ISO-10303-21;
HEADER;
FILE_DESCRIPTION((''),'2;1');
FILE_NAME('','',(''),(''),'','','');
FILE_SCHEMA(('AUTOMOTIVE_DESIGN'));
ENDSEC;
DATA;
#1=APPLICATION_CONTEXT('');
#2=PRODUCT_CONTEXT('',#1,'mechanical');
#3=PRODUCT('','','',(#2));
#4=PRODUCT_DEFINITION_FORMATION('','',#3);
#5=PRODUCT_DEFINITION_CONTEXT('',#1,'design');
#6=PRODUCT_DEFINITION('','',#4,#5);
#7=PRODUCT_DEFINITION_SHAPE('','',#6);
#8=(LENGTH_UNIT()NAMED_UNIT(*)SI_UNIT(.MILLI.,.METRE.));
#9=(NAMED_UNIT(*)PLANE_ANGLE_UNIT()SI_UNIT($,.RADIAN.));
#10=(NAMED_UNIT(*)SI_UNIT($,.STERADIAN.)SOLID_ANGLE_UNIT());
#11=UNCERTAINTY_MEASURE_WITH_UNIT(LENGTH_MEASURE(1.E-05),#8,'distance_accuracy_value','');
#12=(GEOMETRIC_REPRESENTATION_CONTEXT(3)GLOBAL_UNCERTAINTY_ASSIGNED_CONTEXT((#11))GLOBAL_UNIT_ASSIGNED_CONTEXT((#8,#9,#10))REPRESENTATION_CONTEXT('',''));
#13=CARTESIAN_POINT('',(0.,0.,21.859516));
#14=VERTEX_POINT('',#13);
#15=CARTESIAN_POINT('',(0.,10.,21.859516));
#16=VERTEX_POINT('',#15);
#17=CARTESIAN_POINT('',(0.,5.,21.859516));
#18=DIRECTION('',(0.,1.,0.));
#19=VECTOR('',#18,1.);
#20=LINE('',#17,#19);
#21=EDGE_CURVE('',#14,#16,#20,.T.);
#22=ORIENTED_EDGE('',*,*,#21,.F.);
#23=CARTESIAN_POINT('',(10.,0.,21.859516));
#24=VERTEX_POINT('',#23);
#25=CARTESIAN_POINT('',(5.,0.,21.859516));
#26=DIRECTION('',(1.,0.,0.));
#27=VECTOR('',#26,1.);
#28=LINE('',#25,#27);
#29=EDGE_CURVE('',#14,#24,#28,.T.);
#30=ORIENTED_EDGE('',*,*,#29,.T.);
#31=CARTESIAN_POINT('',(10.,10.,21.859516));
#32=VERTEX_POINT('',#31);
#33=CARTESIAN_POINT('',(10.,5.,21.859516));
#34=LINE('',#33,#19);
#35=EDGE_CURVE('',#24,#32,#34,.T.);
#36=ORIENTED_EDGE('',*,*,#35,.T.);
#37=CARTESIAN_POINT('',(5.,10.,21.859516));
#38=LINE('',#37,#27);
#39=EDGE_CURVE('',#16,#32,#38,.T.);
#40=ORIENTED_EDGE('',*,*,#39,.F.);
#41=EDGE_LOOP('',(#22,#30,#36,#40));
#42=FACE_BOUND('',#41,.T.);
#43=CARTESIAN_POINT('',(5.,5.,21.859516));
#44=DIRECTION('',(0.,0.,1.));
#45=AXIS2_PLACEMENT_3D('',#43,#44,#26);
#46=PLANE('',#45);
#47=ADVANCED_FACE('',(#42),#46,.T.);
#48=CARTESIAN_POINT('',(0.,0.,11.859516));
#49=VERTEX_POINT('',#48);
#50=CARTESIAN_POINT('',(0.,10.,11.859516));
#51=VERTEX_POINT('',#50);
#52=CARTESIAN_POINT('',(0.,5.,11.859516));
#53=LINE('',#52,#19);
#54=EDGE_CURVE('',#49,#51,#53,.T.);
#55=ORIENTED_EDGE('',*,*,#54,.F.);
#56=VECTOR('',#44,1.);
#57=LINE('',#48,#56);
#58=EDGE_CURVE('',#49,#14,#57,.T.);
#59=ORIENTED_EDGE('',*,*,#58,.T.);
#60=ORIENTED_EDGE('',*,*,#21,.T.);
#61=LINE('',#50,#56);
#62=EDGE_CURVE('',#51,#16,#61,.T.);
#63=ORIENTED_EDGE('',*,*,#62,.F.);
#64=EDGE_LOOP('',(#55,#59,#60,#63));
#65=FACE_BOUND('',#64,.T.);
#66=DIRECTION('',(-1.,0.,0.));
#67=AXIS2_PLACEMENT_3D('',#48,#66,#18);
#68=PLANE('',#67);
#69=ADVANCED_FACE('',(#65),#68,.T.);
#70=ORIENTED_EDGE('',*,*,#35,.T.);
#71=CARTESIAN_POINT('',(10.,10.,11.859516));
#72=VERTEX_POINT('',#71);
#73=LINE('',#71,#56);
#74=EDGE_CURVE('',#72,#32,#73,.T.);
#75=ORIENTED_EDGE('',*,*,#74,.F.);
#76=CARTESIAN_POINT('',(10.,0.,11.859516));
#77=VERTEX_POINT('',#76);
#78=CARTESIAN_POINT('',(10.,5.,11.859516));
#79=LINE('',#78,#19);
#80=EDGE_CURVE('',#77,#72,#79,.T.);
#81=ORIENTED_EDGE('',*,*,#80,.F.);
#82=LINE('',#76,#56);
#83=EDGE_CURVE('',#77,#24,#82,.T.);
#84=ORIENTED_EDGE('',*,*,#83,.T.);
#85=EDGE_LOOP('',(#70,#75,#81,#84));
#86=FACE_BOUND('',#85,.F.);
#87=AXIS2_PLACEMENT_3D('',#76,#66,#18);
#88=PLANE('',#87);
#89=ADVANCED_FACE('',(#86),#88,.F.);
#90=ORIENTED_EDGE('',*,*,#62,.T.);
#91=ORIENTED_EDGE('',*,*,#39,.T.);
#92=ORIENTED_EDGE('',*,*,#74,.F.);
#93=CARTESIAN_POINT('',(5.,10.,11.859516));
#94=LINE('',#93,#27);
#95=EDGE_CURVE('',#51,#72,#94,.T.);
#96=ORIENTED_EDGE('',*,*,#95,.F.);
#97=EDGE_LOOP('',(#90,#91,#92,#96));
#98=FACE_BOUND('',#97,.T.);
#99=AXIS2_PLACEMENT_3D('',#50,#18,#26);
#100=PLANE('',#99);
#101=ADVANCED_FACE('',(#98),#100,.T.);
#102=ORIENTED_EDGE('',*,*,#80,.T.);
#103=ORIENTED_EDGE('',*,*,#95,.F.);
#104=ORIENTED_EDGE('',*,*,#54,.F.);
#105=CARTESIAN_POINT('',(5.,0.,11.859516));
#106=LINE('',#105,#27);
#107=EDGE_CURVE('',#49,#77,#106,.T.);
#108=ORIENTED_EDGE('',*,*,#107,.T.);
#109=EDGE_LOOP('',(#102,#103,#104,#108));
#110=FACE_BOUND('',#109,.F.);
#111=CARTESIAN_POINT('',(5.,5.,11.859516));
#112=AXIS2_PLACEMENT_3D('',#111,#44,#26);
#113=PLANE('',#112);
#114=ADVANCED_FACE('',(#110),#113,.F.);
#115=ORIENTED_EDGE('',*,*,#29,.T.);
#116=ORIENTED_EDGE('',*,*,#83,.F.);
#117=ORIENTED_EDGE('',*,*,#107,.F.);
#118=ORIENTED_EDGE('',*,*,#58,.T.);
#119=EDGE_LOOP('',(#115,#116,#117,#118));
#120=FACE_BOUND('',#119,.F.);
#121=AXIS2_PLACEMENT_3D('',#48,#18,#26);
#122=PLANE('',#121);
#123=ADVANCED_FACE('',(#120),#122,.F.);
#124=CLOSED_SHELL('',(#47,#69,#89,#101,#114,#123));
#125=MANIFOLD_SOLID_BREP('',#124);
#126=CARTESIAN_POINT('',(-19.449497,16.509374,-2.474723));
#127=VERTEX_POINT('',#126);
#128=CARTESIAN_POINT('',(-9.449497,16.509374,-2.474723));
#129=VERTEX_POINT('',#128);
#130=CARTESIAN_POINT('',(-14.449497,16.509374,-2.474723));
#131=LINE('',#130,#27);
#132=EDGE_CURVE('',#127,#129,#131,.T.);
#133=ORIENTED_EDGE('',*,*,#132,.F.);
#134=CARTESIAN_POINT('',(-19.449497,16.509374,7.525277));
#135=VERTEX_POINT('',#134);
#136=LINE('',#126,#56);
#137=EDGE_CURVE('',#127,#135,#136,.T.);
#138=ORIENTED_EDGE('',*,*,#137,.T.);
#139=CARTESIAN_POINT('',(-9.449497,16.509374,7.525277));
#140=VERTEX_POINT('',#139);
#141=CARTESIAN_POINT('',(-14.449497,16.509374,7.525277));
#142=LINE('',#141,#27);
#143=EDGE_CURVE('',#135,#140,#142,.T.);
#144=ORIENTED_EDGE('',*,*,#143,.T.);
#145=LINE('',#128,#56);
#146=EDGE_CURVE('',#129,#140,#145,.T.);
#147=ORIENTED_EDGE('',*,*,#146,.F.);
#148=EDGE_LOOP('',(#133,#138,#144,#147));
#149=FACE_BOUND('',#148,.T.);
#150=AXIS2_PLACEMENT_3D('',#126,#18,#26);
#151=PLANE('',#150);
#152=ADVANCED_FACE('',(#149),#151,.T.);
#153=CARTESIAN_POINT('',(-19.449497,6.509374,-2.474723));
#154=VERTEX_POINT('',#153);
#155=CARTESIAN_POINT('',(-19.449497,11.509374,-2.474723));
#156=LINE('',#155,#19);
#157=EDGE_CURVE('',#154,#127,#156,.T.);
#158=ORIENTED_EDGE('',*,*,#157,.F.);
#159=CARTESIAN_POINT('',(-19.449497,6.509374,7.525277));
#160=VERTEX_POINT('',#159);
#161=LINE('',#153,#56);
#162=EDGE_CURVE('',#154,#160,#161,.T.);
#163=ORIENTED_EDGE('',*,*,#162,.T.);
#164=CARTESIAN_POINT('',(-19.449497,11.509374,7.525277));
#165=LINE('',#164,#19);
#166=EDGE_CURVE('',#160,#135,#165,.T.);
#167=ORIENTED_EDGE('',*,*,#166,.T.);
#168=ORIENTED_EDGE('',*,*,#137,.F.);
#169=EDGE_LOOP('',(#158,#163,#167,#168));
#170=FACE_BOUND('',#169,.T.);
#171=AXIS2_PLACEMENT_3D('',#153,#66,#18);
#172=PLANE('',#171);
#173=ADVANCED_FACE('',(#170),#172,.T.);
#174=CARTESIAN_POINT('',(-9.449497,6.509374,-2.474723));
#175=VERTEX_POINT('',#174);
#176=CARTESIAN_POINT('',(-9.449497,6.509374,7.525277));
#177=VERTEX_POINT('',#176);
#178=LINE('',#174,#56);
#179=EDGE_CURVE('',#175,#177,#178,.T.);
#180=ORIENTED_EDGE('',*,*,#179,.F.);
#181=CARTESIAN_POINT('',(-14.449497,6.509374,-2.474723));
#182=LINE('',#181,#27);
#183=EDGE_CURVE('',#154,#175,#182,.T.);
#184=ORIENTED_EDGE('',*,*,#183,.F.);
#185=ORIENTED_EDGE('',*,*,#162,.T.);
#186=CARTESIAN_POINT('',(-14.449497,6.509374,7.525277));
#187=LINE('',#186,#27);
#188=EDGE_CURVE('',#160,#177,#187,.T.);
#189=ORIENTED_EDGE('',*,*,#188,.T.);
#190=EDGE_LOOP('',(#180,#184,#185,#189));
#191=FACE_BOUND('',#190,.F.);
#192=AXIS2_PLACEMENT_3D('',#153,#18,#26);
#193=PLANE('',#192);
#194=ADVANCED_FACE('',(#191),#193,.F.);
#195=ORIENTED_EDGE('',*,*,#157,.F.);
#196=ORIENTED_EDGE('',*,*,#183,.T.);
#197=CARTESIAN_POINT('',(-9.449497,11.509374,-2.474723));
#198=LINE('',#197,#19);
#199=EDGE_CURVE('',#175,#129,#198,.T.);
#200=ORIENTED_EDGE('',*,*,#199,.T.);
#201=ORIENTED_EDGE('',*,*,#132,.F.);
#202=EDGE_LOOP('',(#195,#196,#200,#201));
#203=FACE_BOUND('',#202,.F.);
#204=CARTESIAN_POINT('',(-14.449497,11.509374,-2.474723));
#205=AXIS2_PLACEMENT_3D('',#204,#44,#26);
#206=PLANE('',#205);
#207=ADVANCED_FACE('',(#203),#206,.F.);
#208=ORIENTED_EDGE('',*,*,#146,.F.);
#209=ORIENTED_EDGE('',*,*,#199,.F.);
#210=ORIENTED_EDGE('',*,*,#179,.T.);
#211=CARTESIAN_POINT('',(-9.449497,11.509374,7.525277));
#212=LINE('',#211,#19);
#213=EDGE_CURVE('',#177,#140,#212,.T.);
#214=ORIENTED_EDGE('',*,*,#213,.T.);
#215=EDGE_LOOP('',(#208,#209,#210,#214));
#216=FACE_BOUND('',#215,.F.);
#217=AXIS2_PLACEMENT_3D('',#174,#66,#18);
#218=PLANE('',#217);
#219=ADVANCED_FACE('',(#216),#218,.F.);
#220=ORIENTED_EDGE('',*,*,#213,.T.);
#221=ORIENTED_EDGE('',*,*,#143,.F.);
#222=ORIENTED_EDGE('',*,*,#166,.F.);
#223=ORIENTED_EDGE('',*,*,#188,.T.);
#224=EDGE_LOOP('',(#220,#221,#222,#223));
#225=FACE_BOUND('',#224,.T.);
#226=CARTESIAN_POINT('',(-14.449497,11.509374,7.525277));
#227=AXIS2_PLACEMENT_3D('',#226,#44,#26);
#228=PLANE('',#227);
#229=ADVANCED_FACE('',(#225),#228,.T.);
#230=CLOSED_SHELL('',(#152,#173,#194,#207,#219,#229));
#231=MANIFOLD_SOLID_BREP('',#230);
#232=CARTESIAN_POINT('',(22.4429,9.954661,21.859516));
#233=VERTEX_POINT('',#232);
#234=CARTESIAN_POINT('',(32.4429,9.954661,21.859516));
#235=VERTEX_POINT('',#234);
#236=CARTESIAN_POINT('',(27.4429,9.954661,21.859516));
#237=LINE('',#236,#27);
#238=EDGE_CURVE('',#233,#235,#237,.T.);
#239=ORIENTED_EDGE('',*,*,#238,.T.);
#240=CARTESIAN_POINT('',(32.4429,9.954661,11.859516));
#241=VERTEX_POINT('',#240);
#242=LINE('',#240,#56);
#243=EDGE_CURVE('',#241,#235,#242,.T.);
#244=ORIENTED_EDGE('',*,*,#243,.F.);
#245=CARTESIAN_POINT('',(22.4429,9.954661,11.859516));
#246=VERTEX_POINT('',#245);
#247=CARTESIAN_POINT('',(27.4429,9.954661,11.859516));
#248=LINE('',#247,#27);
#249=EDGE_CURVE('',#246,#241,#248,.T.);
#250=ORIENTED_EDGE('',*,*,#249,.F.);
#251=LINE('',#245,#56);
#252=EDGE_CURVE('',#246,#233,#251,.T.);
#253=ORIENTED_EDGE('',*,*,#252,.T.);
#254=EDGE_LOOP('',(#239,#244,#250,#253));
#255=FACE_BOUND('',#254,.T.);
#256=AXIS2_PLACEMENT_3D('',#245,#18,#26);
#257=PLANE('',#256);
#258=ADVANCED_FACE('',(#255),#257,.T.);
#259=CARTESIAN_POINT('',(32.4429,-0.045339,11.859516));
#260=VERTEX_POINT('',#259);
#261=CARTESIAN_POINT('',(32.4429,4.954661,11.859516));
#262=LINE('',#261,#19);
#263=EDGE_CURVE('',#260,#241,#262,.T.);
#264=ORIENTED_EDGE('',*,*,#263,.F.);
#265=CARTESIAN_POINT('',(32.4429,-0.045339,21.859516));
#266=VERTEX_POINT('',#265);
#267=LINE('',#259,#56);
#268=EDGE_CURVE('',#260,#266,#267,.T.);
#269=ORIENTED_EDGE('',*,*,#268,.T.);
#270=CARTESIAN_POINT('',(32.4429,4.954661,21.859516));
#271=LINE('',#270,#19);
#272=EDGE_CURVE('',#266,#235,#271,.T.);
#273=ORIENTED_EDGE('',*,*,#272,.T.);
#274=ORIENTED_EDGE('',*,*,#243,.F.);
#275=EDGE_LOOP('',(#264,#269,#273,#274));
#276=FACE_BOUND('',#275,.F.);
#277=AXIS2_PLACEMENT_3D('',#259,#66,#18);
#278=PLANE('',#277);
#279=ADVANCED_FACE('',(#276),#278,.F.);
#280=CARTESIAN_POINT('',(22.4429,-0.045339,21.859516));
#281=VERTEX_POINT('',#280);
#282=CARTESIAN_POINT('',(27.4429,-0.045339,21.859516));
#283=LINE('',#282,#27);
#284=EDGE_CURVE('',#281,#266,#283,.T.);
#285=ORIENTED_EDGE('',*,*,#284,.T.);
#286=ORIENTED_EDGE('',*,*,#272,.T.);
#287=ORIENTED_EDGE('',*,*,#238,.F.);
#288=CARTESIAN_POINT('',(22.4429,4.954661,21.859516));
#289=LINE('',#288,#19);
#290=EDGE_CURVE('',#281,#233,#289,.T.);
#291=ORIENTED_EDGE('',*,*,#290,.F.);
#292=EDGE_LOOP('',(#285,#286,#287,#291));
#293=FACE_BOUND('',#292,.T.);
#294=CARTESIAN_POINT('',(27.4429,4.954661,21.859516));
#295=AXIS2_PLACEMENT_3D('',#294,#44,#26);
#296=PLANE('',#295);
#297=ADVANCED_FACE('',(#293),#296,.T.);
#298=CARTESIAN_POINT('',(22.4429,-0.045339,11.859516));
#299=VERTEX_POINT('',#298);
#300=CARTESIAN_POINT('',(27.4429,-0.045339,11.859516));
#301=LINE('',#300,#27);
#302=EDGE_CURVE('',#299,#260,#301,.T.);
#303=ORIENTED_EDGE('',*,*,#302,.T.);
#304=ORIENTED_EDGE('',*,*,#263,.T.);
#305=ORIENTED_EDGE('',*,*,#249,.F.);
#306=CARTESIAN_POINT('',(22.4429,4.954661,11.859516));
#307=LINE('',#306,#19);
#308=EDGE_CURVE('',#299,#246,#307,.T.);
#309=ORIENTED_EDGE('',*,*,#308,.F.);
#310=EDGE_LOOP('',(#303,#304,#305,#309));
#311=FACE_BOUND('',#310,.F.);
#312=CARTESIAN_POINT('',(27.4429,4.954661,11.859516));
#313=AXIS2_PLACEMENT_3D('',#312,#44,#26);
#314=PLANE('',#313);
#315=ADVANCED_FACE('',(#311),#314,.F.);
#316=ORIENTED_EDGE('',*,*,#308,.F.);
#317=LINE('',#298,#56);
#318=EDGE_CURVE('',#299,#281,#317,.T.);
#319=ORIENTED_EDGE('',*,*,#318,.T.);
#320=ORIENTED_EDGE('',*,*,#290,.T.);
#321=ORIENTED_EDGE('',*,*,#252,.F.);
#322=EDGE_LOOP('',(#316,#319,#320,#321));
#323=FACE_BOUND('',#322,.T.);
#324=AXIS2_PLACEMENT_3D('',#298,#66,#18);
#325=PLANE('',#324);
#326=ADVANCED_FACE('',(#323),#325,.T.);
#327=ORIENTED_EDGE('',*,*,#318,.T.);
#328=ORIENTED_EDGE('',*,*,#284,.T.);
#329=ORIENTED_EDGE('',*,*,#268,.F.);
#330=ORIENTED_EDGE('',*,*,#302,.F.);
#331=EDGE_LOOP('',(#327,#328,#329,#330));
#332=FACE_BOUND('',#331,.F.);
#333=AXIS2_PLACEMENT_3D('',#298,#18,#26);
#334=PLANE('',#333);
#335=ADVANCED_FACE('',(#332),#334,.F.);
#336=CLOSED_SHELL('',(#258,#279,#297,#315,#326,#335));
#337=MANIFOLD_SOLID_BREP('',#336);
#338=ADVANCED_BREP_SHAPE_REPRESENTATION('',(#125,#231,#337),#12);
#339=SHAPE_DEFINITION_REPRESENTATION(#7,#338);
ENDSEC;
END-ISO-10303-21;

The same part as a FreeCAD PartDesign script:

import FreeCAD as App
import Part
import Sketcher
Q = App.Units.Quantity


def add_polygon(sketch, points):
    """Adds a closed chain of lines whose ends are joined by coincident constraints."""
    first, n = sketch.GeometryCount, len(points)
    for a, b in zip(points, points[1:] + points[:1]):
        sketch.addGeometry(Part.LineSegment(App.Vector(*a, 0), App.Vector(*b, 0)), False)
    for i in range(n):
        sketch.addConstraint(Sketcher.Constraint("Coincident", first + i, 2, first + (i + 1) % n, 1))

doc = App.newDocument("Part")
params = doc.addObject("Spreadsheet::Sheet", "Params")
for row, (alias, value) in enumerate([
    ("sketch1_width", "10 mm"),
    ("pad1_length", "10 mm"),
    ("sketch2_width", "10 mm"),
    ("pad2_length", "10 mm"),
    ("sketch3_width", "10 mm"),
    ("pad3_length", "10 mm"),
], start=1):
    params.set(f"A{row}", alias)
    params.set(f"B{row}", "=" + value)
    params.setAlias(f"B{row}", alias)

body = doc.addObject("PartDesign::Body", "Body")

# Sketch on XY plane
sketch1 = body.newObject("Sketcher::SketchObject", "Sketch")
sketch1.AttachmentSupport = (doc.getObject("XY_Plane"), [""])
sketch1.MapMode = "FlatFace"
sketch1.AttachmentOffset = App.Placement(App.Vector(0, 0, -2.474723), App.Rotation())
add_polygon(sketch1, [(-19, 17), (-19, 7), (-9, 7), (-9, 17)])  # lines 0-3
sketch1.addConstraint(Sketcher.Constraint("Vertical", 0))
sketch1.addConstraint(Sketcher.Constraint("Horizontal", 1))
sketch1.addConstraint(Sketcher.Constraint("Vertical", 2))
sketch1.addConstraint(Sketcher.Constraint("Horizontal", 3))
sketch1.addConstraint(Sketcher.Constraint("Equal", 3, 0))
sketch1.addConstraint(Sketcher.Constraint("DistanceX", 1, 1, 1, 2, Q("10 mm")))
sketch1.addConstraint(Sketcher.Constraint("DistanceX", 0, 2, -1, 1, Q("19.449497 mm")))
sketch1.addConstraint(Sketcher.Constraint("DistanceY", -1, 1, 0, 2, Q("6.509374 mm")))
sketch1.setExpression("Constraints[9]", "Params.sketch1_width")
pad1 = body.newObject("PartDesign::Pad", "Pad")
pad1.Profile = sketch1
pad1.setExpression("Length", "Params.pad1_length")
body2 = doc.addObject("PartDesign::Body", "Body001")

# Sketch on XY plane
sketch2 = body2.newObject("Sketcher::SketchObject", "Sketch001")
sketch2.AttachmentSupport = (doc.getObject("XY_Plane001"), [""])
sketch2.MapMode = "FlatFace"
sketch2.AttachmentOffset = App.Placement(App.Vector(0, 0, 11.859516), App.Rotation())
add_polygon(sketch2, [(22, 10), (22, 0), (32, 0), (32, 10)])  # lines 0-3
sketch2.addConstraint(Sketcher.Constraint("Vertical", 0))
sketch2.addConstraint(Sketcher.Constraint("Horizontal", 1))
sketch2.addConstraint(Sketcher.Constraint("Vertical", 2))
sketch2.addConstraint(Sketcher.Constraint("Horizontal", 3))
sketch2.addConstraint(Sketcher.Constraint("Equal", 3, 0))
sketch2.addConstraint(Sketcher.Constraint("DistanceX", 1, 1, 1, 2, Q("10 mm")))
sketch2.addConstraint(Sketcher.Constraint("DistanceX", -1, 1, 0, 2, Q("22.4429 mm")))
sketch2.addConstraint(Sketcher.Constraint("DistanceY", 0, 2, -1, 1, Q("0.045339 mm")))
sketch2.setExpression("Constraints[9]", "Params.sketch2_width")
pad2 = body2.newObject("PartDesign::Pad", "Pad001")
pad2.Profile = sketch2
pad2.setExpression("Length", "Params.pad2_length")
body3 = doc.addObject("PartDesign::Body", "Body002")

# Sketch on XY plane
sketch3 = body3.newObject("Sketcher::SketchObject", "Sketch002")
sketch3.AttachmentSupport = (doc.getObject("XY_Plane002"), [""])
sketch3.MapMode = "FlatFace"
sketch3.AttachmentOffset = App.Placement(App.Vector(0, 0, 11.859516), App.Rotation())
add_polygon(sketch3, [(0, 10), (0, 0), (10, 0), (10, 10)])  # lines 0-3
sketch3.addConstraint(Sketcher.Constraint("Vertical", 0))
sketch3.addConstraint(Sketcher.Constraint("Horizontal", 1))
sketch3.addConstraint(Sketcher.Constraint("Vertical", 2))
sketch3.addConstraint(Sketcher.Constraint("Horizontal", 3))
sketch3.addConstraint(Sketcher.Constraint("Coincident", 0, 2, -1, 1))
sketch3.addConstraint(Sketcher.Constraint("Equal", 3, 0))
sketch3.addConstraint(Sketcher.Constraint("DistanceX", 1, 1, 1, 2, Q("10 mm")))
sketch3.setExpression("Constraints[10]", "Params.sketch3_width")
pad3 = body3.newObject("PartDesign::Pad", "Pad002")
pad3.Profile = sketch3
pad3.setExpression("Length", "Params.pad3_length")

doc.recompute()
